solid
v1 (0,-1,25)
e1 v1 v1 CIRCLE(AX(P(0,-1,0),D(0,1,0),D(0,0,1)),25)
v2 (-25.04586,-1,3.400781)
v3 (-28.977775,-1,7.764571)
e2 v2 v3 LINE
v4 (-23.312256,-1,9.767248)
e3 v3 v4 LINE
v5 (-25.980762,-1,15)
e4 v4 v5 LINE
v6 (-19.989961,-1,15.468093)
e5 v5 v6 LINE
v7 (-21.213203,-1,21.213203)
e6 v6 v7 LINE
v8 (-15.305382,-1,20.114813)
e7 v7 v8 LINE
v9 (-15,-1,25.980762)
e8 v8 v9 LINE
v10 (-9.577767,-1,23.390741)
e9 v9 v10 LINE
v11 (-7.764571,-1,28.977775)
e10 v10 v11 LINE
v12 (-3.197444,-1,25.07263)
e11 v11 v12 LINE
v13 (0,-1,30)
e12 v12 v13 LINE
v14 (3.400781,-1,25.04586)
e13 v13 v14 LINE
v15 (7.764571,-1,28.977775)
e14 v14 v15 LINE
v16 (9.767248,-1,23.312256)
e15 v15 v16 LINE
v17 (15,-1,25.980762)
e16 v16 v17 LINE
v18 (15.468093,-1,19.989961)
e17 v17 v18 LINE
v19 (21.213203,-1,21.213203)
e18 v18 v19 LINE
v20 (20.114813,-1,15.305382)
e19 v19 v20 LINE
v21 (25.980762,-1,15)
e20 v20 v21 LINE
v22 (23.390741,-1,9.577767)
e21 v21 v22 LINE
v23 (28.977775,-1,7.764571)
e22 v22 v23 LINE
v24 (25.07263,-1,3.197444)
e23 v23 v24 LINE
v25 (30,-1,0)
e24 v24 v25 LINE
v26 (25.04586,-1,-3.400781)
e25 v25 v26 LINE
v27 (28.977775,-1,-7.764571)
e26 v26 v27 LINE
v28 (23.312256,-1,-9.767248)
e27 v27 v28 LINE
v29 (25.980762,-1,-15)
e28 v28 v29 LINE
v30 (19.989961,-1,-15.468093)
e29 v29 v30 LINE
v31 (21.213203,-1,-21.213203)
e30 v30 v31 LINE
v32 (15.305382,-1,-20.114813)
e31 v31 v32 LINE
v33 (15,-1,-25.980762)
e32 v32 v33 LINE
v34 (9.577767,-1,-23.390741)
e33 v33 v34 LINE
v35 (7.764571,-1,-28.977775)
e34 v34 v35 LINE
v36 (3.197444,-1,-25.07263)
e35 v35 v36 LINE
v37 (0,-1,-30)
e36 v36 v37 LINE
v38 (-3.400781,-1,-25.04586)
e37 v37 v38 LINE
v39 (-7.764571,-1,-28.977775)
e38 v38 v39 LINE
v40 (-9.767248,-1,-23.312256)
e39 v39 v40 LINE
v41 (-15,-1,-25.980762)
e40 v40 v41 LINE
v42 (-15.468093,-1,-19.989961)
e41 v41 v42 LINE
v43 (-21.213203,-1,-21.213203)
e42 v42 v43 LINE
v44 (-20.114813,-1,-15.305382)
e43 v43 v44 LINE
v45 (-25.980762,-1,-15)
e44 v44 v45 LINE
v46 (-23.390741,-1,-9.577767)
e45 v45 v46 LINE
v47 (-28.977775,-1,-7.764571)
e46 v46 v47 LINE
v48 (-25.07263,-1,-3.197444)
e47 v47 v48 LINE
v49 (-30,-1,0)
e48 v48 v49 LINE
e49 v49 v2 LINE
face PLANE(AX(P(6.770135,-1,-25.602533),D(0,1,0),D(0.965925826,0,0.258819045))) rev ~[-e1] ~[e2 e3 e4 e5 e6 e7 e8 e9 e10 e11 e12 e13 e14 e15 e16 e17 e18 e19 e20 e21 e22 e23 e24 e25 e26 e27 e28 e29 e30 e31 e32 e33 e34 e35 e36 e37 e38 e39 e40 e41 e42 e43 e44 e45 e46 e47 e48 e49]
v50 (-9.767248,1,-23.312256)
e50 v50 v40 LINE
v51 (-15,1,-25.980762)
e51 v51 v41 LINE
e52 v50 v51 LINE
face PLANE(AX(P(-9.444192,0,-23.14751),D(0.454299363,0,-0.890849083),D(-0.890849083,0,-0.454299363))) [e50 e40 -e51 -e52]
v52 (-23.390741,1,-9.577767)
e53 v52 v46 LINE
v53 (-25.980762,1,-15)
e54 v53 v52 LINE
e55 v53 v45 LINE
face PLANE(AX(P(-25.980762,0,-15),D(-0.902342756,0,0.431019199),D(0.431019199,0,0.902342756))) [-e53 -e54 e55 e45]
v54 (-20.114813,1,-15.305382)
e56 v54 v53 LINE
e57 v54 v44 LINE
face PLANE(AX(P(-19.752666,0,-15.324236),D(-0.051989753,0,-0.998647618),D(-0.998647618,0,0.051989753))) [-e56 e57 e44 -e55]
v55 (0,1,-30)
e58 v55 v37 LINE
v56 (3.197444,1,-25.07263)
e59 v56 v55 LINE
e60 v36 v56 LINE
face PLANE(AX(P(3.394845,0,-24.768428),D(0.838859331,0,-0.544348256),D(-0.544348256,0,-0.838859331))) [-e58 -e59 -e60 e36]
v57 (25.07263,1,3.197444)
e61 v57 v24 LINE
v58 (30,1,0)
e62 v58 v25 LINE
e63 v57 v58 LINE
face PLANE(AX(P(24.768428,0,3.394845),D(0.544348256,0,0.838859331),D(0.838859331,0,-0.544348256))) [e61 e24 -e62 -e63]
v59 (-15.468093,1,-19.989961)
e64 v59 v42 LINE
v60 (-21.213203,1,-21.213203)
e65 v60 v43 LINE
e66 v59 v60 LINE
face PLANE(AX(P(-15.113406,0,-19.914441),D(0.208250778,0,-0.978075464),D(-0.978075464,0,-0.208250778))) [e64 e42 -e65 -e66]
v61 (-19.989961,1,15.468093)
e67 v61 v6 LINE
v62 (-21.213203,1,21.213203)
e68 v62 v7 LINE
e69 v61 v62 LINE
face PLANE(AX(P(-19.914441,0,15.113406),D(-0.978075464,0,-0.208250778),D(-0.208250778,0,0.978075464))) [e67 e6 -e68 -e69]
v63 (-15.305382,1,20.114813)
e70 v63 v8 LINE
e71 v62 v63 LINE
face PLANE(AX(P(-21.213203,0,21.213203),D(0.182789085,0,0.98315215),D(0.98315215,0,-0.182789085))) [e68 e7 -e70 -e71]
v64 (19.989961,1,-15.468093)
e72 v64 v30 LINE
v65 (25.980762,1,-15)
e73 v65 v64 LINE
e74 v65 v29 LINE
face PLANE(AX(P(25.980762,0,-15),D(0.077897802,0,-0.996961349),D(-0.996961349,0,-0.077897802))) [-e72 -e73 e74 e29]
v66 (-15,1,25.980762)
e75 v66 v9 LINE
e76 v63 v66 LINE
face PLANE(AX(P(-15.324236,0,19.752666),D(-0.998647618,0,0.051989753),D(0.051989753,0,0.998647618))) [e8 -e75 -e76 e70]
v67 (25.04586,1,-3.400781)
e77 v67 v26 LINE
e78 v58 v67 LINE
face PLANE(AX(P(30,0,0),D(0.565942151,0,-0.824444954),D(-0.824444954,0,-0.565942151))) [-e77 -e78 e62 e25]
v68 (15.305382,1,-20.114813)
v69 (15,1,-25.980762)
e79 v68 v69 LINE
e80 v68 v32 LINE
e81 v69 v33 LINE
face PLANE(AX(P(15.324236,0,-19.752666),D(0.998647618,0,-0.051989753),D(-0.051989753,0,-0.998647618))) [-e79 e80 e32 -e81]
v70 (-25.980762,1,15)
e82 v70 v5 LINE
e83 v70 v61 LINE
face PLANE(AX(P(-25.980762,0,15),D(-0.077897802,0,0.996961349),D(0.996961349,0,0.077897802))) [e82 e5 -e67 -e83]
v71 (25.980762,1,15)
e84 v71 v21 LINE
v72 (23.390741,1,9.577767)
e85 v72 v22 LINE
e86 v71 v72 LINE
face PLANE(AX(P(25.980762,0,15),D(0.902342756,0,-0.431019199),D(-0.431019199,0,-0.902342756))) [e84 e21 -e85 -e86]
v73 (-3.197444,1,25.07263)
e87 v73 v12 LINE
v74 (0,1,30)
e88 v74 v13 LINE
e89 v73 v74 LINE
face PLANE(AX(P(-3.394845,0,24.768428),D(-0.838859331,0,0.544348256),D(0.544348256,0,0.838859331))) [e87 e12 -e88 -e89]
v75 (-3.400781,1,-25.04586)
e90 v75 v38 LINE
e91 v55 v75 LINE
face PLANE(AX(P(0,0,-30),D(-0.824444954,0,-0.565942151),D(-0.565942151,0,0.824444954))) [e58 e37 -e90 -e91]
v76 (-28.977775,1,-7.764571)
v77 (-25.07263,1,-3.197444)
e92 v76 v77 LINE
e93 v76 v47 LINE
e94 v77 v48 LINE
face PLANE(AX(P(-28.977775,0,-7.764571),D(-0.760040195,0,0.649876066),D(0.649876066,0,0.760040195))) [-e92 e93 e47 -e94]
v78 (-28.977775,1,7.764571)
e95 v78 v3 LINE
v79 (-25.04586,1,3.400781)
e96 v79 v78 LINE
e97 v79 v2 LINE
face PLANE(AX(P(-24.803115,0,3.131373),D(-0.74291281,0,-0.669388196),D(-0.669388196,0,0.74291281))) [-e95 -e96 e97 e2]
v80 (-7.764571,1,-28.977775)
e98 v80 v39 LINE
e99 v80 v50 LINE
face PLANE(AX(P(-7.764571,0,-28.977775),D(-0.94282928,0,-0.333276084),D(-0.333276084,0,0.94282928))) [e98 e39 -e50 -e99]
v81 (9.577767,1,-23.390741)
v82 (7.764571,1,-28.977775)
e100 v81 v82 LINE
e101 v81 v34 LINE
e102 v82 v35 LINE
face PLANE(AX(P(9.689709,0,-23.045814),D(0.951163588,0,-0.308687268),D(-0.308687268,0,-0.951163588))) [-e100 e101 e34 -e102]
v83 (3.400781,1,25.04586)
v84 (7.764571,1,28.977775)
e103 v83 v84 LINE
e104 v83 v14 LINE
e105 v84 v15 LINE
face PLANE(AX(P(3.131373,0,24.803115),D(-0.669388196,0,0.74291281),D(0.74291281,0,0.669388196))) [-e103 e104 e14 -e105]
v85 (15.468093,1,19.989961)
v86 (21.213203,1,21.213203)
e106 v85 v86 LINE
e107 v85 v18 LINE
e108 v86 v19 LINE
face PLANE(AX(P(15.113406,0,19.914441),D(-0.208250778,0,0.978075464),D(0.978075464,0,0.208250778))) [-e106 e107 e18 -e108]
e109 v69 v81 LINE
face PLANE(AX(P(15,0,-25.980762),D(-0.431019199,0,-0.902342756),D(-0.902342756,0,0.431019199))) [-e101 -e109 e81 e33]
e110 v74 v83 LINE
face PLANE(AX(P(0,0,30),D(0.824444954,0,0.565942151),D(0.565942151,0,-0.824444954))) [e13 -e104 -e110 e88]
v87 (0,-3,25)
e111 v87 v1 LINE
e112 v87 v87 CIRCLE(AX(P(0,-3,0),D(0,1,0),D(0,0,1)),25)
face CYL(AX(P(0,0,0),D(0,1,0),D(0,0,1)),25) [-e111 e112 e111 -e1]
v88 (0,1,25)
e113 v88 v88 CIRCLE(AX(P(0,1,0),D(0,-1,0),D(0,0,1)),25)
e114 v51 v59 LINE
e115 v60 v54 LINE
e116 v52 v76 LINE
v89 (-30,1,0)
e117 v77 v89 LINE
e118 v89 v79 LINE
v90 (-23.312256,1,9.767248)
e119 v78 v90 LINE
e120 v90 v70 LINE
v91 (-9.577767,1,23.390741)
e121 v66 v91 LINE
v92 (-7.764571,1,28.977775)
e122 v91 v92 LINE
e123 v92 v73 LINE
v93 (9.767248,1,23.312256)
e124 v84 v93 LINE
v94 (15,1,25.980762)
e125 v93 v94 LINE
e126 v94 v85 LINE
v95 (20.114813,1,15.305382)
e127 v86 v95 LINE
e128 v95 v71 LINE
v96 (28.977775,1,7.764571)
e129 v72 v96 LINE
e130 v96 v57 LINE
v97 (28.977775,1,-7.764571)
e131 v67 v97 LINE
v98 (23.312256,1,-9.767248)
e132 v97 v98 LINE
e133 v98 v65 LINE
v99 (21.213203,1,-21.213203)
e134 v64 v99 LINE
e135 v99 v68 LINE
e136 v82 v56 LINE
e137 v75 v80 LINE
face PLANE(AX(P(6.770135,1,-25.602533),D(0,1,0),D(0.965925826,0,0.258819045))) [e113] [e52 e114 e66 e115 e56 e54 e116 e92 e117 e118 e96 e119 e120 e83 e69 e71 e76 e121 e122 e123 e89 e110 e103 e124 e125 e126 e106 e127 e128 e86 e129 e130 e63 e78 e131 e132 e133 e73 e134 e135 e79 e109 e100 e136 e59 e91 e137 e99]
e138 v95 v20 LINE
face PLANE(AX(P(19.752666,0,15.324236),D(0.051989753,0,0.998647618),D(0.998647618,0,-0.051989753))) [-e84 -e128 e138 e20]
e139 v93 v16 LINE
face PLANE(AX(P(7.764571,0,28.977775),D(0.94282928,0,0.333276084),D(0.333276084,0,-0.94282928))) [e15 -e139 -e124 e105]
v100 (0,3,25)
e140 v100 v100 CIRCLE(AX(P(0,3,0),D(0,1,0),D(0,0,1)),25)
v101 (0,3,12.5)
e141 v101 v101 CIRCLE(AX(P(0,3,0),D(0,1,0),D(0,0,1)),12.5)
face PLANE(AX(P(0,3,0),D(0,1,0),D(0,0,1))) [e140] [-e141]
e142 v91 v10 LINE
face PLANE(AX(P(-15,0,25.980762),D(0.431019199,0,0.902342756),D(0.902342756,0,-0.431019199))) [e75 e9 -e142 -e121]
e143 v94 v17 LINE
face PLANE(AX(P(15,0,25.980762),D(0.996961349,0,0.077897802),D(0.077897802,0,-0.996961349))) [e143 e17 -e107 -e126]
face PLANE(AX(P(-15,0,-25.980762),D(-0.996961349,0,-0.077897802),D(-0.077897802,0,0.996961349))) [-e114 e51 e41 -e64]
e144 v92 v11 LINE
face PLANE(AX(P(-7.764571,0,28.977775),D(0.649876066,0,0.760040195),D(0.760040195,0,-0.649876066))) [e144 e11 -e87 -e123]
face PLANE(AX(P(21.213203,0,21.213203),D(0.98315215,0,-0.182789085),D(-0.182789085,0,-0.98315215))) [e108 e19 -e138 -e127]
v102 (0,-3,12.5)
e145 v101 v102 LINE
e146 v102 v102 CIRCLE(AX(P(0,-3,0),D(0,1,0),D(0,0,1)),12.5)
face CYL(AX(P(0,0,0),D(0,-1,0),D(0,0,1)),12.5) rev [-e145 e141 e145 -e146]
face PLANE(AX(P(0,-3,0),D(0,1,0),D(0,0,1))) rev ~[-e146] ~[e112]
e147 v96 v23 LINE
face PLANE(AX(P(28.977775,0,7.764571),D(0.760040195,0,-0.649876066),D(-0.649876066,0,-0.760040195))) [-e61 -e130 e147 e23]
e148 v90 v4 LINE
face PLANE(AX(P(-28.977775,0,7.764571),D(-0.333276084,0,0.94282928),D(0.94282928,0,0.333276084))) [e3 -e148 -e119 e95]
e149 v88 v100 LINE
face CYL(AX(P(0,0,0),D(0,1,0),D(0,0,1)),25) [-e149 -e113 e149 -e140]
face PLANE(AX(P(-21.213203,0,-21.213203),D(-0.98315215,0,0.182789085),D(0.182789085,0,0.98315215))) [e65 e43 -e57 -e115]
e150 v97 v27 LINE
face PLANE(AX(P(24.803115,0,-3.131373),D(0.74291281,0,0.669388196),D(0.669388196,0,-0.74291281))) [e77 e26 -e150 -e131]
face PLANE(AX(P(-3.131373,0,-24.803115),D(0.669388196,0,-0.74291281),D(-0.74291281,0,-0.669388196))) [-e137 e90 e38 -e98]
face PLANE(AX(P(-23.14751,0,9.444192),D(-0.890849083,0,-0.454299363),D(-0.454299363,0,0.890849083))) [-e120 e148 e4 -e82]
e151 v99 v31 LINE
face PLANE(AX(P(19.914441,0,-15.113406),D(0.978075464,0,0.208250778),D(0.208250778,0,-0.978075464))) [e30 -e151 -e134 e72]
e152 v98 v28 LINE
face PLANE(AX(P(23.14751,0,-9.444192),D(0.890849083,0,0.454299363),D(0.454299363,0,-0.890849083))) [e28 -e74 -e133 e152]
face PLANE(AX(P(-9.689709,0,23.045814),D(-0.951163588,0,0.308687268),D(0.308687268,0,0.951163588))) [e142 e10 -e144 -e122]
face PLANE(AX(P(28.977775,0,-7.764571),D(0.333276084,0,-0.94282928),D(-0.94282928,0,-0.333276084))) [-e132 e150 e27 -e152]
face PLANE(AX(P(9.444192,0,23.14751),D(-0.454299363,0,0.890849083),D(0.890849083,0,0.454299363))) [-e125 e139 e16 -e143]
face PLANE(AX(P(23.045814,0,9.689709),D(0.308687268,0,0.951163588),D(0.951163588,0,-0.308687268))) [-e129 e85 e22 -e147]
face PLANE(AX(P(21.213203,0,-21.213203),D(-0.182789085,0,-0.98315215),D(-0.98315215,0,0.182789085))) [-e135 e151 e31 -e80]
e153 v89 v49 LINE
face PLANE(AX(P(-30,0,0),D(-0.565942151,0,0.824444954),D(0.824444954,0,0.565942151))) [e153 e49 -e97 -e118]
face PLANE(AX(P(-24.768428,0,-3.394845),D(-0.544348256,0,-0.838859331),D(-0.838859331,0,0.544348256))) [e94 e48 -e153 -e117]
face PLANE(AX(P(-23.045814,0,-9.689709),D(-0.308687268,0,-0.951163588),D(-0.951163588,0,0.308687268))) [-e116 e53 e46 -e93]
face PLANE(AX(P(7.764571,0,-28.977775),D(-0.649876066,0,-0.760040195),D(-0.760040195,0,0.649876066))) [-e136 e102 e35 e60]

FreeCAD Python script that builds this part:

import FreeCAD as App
import Part
import Sketcher

V = App.Vector
Q = App.Units.Quantity

doc = App.newDocument("Part")
body = doc.addObject("PartDesign::Body", "Body")

# Sketch on XZ plane
sketch1 = doc.addObject("Sketcher::SketchObject", "Sketch")
body.addObject(sketch1)
sketch1.AttachmentSupport = (doc.XZ_Plane, [""])
sketch1.MapMode = "FlatFace"
sketch1.addGeometry(Part.Circle(V(0, 0, 0), V(0, 0, 1), 25), False)
sketch1.addGeometry(Part.Circle(V(0, 0, 0), V(0, 0, 1), 12.5), False)
sketch1.addConstraint(Sketcher.Constraint("Coincident", 0, 3, -1, 1))
sketch1.addConstraint(Sketcher.Constraint("Coincident", 1, 3, -1, 1))
sketch1.addConstraint(Sketcher.Constraint("Diameter", 0, Q("50 mm")))
sketch1.addConstraint(Sketcher.Constraint("Diameter", 1, Q("25 mm")))
pad1 = doc.addObject("PartDesign::Pad", "Pad")
body.addObject(pad1)
pad1.Profile = sketch1
pad1.Length = 6
pad1.Midplane = True

# Sketch on XZ plane
sketch2 = doc.addObject("Sketcher::SketchObject", "Sketch001")
body.addObject(sketch2)
sketch2.AttachmentSupport = (doc.XZ_Plane, [""])
sketch2.MapMode = "FlatFace"
sketch2.addGeometry(Part.LineSegment(V(0, -30, 0), V(-3.612359, -24.737641, 0)), False)
sketch2.addGeometry(Part.LineSegment(V(-3.612359, -24.737641, 0), V(0, -25, 0)), False)
sketch2.addGeometry(Part.LineSegment(V(0, -25, 0), V(3.394845, -24.768428, 0)), False)
sketch2.addGeometry(Part.LineSegment(V(3.394845, -24.768428, 0), V(0, -30, 0)), False)
sketch2.addConstraint(Sketcher.Constraint("Coincident", 0, 2, 1, 1))
sketch2.addConstraint(Sketcher.Constraint("Coincident", 1, 2, 2, 1))
sketch2.addConstraint(Sketcher.Constraint("Coincident", 2, 2, 3, 1))
sketch2.addConstraint(Sketcher.Constraint("Coincident", 3, 2, 0, 1))
sketch2.addConstraint(Sketcher.Constraint("PointOnObject", 1, 2, -2))
sketch2.addConstraint(Sketcher.Constraint("PointOnObject", 3, 2, -2))
sketch2.addConstraint(Sketcher.Constraint("DistanceY", 1, 2, -1, 1, Q("25 mm")))
sketch2.addConstraint(Sketcher.Constraint("DistanceY", 3, 2, -1, 1, Q("30 mm")))
sketch2.addConstraint(Sketcher.Constraint("Distance", 0, Q("6.382912 mm")))
sketch2.addConstraint(Sketcher.Constraint("Distance", 3, Q("6.236531 mm")))
sketch2.addConstraint(Sketcher.Constraint("DistanceX", 0, 2, -1, 1, Q("3.612359 mm")))
sketch2.addConstraint(Sketcher.Constraint("DistanceY", 2, 2, -1, 1, Q("24.768428 mm")))
pad2 = doc.addObject("PartDesign::Pad", "Pad001")
body.addObject(pad2)
pad2.Profile = sketch2
pad2.Length = 2
pad2.Midplane = True
doc.recompute()

polarpattern = doc.addObject("PartDesign::PolarPattern", "PolarPattern")
body.addObject(polarpattern)
polarpattern.Originals = [pad2]
polarpattern.Axis = (doc.Y_Axis, [""])
polarpattern.Angle = 360
polarpattern.Occurrences = 24
body.Tip = polarpattern

doc.recompute()
